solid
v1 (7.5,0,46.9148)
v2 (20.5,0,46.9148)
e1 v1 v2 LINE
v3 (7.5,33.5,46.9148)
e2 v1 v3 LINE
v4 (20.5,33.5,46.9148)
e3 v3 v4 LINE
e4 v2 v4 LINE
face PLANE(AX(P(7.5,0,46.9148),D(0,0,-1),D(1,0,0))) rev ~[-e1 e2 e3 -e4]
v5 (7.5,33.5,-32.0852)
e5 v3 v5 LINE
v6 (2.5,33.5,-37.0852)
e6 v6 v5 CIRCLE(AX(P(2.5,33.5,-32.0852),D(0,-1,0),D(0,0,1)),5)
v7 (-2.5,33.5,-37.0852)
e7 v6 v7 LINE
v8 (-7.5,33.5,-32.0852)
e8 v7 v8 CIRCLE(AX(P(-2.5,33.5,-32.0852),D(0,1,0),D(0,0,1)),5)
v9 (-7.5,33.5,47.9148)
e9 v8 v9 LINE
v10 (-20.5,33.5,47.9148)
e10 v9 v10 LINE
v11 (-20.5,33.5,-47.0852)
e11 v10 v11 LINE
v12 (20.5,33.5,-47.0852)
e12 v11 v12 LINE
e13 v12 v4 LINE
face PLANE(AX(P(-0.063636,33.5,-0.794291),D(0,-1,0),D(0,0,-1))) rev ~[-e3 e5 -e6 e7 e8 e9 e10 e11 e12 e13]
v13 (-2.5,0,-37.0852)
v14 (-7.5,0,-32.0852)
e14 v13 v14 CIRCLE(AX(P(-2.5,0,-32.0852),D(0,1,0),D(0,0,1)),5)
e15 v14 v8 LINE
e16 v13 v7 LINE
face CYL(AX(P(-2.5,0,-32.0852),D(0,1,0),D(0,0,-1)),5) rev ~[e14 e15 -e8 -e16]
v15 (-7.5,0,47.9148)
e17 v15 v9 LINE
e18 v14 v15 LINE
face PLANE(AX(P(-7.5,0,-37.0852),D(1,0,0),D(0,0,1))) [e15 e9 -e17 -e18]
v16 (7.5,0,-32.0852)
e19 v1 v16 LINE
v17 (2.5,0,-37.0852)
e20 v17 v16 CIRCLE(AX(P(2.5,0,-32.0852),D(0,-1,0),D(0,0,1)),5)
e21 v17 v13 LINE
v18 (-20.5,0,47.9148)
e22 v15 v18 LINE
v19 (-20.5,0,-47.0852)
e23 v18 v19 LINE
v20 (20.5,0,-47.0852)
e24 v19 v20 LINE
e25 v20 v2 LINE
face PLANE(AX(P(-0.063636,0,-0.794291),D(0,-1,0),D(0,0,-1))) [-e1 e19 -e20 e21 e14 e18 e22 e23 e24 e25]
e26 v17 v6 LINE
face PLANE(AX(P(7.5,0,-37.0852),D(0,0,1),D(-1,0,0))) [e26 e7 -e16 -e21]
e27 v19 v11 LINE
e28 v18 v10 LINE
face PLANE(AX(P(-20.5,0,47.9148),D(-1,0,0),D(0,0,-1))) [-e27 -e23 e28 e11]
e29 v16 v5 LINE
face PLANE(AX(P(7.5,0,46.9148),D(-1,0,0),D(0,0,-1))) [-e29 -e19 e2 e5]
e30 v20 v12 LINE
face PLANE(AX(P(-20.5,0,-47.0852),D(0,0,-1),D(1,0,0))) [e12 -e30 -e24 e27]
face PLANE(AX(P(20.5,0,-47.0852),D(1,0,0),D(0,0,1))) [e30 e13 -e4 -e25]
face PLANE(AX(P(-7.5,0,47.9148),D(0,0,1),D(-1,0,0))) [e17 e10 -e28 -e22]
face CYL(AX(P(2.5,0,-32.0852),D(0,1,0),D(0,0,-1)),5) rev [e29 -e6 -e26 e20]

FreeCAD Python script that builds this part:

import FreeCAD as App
import Part
import Sketcher
Q = App.Units.Quantity


def edges_at(feature, points):
    """Names of the edges that pass closest to the given points."""
    edges = feature.Shape.Edges
    near = lambda p: min(range(len(edges)), key=lambda i: edges[i].distToShape(Part.Vertex(*p))[0])
    return sorted({f"Edge{near(p) + 1}" for p in points})


def add_polygon(sketch, points):
    """Adds a closed chain of lines whose ends are joined by coincident constraints."""
    first, n = sketch.GeometryCount, len(points)
    for a, b in zip(points, points[1:] + points[:1]):
        sketch.addGeometry(Part.LineSegment(App.Vector(*a, 0), App.Vector(*b, 0)), False)
    for i in range(n):
        sketch.addConstraint(Sketcher.Constraint("Coincident", first + i, 2, first + (i + 1) % n, 1))

doc = App.newDocument("Part")
body = doc.addObject("PartDesign::Body", "Body")

# Sketch on XZ plane
sketch1 = body.newObject("Sketcher::SketchObject", "Sketch")
sketch1.AttachmentSupport = (doc.getObject("XZ_Plane"), [""])
sketch1.MapMode = "FlatFace"
add_polygon(sketch1, [(8, 47), (8, -37), (-8, -37), (-8, 48), (-20, 48), (-20, -47), (20, -47), (20, 47)])  # lines 0-7
sketch1.addConstraint([
    Sketcher.Constraint("Vertical", 0),
    Sketcher.Constraint("Horizontal", 1),
    Sketcher.Constraint("Vertical", 2),
    Sketcher.Constraint("Horizontal", 3),
    Sketcher.Constraint("Vertical", 4),
    Sketcher.Constraint("Horizontal", 5),
    Sketcher.Constraint("Vertical", 6),
    Sketcher.Constraint("Horizontal", 7),
    Sketcher.Constraint("Equal", 3, 7),
    Sketcher.Constraint("DistanceX", 1, 2, 1, 1, Q("15 mm")),
    Sketcher.Constraint("DistanceX", 3, 2, 3, 1, Q("13 mm")),
    Sketcher.Constraint("DistanceY", 0, 2, 0, 1, Q("84 mm")),
    Sketcher.Constraint("DistanceY", 2, 1, 2, 2, Q("85 mm")),
    Sketcher.Constraint("DistanceY", 4, 2, 4, 1, Q("95 mm")),
    Sketcher.Constraint("DistanceX", -1, 1, 0, 2, Q("7.5 mm")),
    Sketcher.Constraint("DistanceY", 0, 2, -1, 1, Q("37.0852 mm")),
])
pad1 = body.newObject("PartDesign::Pad", "Pad")
pad1.Profile = sketch1
pad1.Length = 33.5
pad1.Reversed = True
doc.recompute()

fillet = body.newObject("PartDesign::Fillet", "Fillet")
fillet.Base = (pad1, edges_at(pad1, [(7.5, 16.75, -37.085), (-7.5, 16.75, -37.085)]))
fillet.Radius = 5

doc.recompute()
